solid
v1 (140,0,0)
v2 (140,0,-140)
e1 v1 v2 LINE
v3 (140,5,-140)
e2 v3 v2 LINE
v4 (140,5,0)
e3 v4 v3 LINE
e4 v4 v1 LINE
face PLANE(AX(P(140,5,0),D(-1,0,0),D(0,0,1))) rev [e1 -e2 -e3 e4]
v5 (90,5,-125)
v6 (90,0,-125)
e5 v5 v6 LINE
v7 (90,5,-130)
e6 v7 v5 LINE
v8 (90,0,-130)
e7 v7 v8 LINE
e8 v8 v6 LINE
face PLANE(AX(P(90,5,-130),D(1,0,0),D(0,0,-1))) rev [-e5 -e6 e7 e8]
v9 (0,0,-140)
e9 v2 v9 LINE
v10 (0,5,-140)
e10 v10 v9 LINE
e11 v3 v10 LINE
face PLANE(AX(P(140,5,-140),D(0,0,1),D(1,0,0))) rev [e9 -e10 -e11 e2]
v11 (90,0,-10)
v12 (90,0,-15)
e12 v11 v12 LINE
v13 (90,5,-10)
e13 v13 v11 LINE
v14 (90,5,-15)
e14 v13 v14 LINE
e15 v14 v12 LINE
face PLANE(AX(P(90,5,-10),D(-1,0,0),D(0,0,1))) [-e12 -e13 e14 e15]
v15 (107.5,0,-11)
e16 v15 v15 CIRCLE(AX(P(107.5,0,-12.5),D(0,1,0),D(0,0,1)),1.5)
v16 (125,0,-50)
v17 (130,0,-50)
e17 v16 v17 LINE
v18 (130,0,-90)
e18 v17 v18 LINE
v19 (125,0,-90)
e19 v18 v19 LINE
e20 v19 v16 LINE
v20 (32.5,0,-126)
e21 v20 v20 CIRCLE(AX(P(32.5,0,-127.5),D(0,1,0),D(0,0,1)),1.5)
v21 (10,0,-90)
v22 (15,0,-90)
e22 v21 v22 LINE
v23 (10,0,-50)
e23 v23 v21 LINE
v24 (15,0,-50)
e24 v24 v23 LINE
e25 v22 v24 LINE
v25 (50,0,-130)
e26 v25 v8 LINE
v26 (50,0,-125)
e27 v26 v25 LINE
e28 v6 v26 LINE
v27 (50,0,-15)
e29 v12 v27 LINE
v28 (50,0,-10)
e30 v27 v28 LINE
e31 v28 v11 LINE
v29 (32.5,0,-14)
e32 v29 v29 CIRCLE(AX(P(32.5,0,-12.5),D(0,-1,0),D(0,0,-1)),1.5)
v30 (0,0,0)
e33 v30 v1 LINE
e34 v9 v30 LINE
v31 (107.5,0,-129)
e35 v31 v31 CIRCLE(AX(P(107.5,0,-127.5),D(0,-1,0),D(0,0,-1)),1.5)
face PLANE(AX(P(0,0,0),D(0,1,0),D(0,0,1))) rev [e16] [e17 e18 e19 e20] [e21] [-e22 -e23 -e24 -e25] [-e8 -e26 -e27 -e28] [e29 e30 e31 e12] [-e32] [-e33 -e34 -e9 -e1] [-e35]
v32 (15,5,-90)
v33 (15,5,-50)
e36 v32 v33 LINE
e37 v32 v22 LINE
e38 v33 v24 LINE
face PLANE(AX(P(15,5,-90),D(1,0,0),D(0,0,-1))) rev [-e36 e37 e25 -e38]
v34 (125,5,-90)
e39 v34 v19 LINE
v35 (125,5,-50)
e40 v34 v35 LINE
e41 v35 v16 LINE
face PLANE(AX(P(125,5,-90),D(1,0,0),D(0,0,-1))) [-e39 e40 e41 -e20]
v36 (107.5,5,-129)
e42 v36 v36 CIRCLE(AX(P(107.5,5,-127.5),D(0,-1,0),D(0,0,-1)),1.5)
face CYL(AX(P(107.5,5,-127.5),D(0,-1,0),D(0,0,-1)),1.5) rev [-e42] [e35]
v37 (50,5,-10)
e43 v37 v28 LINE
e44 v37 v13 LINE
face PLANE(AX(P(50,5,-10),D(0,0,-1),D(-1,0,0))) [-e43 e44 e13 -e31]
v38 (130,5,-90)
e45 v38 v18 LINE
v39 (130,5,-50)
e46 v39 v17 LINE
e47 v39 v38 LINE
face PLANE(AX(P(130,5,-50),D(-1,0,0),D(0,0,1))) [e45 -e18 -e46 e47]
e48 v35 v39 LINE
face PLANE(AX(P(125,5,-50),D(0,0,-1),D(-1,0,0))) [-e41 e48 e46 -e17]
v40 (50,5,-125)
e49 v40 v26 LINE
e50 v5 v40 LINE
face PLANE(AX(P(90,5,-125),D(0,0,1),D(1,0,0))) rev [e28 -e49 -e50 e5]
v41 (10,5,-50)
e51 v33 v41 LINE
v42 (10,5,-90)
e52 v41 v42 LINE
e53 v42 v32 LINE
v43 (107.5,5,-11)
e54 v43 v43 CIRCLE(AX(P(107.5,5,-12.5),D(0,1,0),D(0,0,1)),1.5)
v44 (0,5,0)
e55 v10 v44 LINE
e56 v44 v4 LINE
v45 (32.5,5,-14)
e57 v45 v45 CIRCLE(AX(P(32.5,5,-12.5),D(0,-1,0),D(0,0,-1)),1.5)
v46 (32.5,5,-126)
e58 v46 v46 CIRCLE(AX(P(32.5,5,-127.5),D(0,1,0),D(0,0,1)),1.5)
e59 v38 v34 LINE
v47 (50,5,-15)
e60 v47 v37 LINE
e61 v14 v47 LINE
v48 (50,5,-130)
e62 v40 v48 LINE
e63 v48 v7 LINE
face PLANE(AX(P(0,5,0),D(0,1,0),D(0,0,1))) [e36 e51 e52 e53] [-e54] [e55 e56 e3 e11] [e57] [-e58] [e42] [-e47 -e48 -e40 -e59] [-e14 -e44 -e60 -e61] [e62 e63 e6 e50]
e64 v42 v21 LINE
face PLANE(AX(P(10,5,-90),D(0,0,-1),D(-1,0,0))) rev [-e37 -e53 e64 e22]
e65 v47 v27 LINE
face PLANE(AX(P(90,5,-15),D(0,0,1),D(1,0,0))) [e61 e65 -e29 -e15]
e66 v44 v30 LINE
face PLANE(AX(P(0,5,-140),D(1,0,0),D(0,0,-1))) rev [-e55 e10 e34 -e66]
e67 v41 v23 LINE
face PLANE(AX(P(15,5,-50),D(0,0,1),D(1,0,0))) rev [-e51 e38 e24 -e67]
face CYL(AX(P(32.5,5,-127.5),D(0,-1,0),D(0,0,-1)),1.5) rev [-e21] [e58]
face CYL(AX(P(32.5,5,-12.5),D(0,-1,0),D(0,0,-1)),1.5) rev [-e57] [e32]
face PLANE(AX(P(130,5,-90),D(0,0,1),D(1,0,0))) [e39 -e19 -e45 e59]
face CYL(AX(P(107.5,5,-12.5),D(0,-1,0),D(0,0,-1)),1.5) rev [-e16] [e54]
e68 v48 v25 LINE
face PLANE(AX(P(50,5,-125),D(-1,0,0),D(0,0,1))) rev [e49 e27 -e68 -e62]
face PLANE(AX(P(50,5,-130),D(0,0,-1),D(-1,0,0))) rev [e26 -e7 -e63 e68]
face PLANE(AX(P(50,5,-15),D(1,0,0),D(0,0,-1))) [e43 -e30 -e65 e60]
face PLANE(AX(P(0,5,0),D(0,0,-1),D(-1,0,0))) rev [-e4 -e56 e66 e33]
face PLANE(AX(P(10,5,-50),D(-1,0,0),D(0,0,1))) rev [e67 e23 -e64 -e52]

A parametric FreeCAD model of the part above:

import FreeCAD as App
import Part
import Sketcher
from FreeCAD import Vector
Q = App.Units.Quantity


def add_polygon(sketch, points):
    """Adds a closed chain of lines whose ends are joined by coincident constraints."""
    first, n = sketch.GeometryCount, len(points)
    for a, b in zip(points, points[1:] + points[:1]):
        sketch.addGeometry(Part.LineSegment(App.Vector(*a, 0), App.Vector(*b, 0)), False)
    for i in range(n):
        sketch.addConstraint(Sketcher.Constraint("Coincident", first + i, 2, first + (i + 1) % n, 1))

doc = App.newDocument("Part")
params = doc.addObject("Spreadsheet::Sheet", "Params")
for row, (alias, value) in enumerate([
    ("sketch1_diameter", "3 mm"),
    ("sketch1_width", "140 mm"),
    ("sketch1_width2", "40 mm"),
    ("sketch1_width3", "5 mm"),
    ("pad1_length", "5 mm"),
], start=1):
    params.set(f"A{row}", alias)
    params.set(f"B{row}", "=" + value)
    params.setAlias(f"B{row}", alias)

body = doc.addObject("PartDesign::Body", "Body")

# Sketch on XZ plane
sketch1 = body.newObject("Sketcher::SketchObject", "Sketch")
sketch1.AttachmentSupport = (doc.getObject("XZ_Plane"), [""])
sketch1.MapMode = "FlatFace"
add_polygon(sketch1, [(0, -140), (0, 0), (140, 0), (140, -140)])  # lines 0-3
sketch1.addGeometry(Part.Circle(Vector(32.5, -12.5, 0), Vector(0, 0, 1), 1.5), False)  # 4
add_polygon(sketch1, [(90, -10), (50, -10), (50, -15), (90, -15)])  # lines 5-8
sketch1.addGeometry(Part.Circle(Vector(107.5, -12.5, 0), Vector(0, 0, 1), 1.5), False)  # 9
add_polygon(sketch1, [(15, -50), (10, -50), (10, -90), (15, -90)])  # lines 10-13
sketch1.addGeometry(Part.Circle(Vector(32.5, -127.5, 0), Vector(0, 0, 1), 1.5), False)  # 14
add_polygon(sketch1, [(130, -50), (125, -50), (125, -90), (130, -90)])  # lines 15-18
add_polygon(sketch1, [(90, -125), (50, -125), (50, -130), (90, -130)])  # lines 19-22
sketch1.addGeometry(Part.Circle(Vector(107.5, -127.5, 0), Vector(0, 0, 1), 1.5), False)  # 23
sketch1.addConstraint([
    Sketcher.Constraint("Vertical", 0),
    Sketcher.Constraint("Horizontal", 1),
    Sketcher.Constraint("Vertical", 2),
    Sketcher.Constraint("Horizontal", 3),
    Sketcher.Constraint("Horizontal", 5),
    Sketcher.Constraint("Vertical", 6),
    Sketcher.Constraint("Horizontal", 7),
    Sketcher.Constraint("Vertical", 8),
    Sketcher.Constraint("Horizontal", 10),
    Sketcher.Constraint("Vertical", 11),
    Sketcher.Constraint("Horizontal", 12),
    Sketcher.Constraint("Vertical", 13),
    Sketcher.Constraint("Horizontal", 15),
    Sketcher.Constraint("Vertical", 16),
    Sketcher.Constraint("Horizontal", 17),
    Sketcher.Constraint("Vertical", 18),
    Sketcher.Constraint("Horizontal", 19),
    Sketcher.Constraint("Vertical", 20),
    Sketcher.Constraint("Horizontal", 21),
    Sketcher.Constraint("Vertical", 22),
    Sketcher.Constraint("Coincident", 0, 2, -1, 1),
    Sketcher.Constraint("Equal", 4, 9),
    Sketcher.Constraint("Equal", 9, 14),
    Sketcher.Constraint("Equal", 14, 23),
    Sketcher.Constraint("Horizontal", 4, 3, 9, 3),
    Sketcher.Constraint("Horizontal", 14, 3, 23, 3),
    Sketcher.Constraint("Horizontal", 13, 2, 15, 2),
    Sketcher.Constraint("Horizontal", 12, 2, 16, 2),
    Sketcher.Constraint("Vertical", 4, 3, 14, 3),
    Sketcher.Constraint("Vertical", 9, 3, 23, 3),
    Sketcher.Constraint("Vertical", 6, 2, 19, 2),
    Sketcher.Constraint("Vertical", 8, 2, 21, 2),
    Sketcher.Constraint("Equal", 12, 15),
    Sketcher.Constraint("Equal", 3, 0),
    Sketcher.Constraint("Equal", 17, 6),
    Sketcher.Constraint("Equal", 21, 11),
    Sketcher.Constraint("Equal", 8, 20),
    Sketcher.Constraint("Diameter", 4, Q("3 mm")),
    Sketcher.Constraint("DistanceX", 1, 1, 1, 2, Q("140 mm")),
    Sketcher.Constraint("DistanceX", 5, 2, 5, 1, Q("40 mm")),
    Sketcher.Constraint("DistanceX", 10, 2, 10, 1, Q("5 mm")),
    Sketcher.Constraint("DistanceX", -1, 1, 5, 2, Q("50 mm")),
    Sketcher.Constraint("DistanceY", 5, 2, -1, 1, Q("10 mm")),
    Sketcher.Constraint("DistanceX", -1, 1, 10, 2, Q("10 mm")),
    Sketcher.Constraint("DistanceY", 10, 2, -1, 1, Q("50 mm")),
    Sketcher.Constraint("DistanceX", -1, 1, 15, 2, Q("125 mm")),
    Sketcher.Constraint("DistanceY", 19, 2, -1, 1, Q("125 mm")),
    Sketcher.Constraint("DistanceX", 4, 3, 9, 3, Q("75 mm")),
    Sketcher.Constraint("DistanceY", 14, 3, 4, 3, Q("115 mm")),
    Sketcher.Constraint("DistanceX", -1, 1, 4, 3, Q("32.5 mm")),
    Sketcher.Constraint("DistanceY", 4, 3, -1, 1, Q("12.5 mm")),
])
sketch1.setExpression("Constraints[57]", "Params.sketch1_diameter")
sketch1.setExpression("Constraints[58]", "Params.sketch1_width")
sketch1.setExpression("Constraints[59]", "Params.sketch1_width2")
sketch1.setExpression("Constraints[60]", "Params.sketch1_width3")
pad1 = body.newObject("PartDesign::Pad", "Pad")
pad1.Profile = sketch1
pad1.setExpression("Length", "Params.pad1_length")
pad1.Reversed = True

doc.recompute()
